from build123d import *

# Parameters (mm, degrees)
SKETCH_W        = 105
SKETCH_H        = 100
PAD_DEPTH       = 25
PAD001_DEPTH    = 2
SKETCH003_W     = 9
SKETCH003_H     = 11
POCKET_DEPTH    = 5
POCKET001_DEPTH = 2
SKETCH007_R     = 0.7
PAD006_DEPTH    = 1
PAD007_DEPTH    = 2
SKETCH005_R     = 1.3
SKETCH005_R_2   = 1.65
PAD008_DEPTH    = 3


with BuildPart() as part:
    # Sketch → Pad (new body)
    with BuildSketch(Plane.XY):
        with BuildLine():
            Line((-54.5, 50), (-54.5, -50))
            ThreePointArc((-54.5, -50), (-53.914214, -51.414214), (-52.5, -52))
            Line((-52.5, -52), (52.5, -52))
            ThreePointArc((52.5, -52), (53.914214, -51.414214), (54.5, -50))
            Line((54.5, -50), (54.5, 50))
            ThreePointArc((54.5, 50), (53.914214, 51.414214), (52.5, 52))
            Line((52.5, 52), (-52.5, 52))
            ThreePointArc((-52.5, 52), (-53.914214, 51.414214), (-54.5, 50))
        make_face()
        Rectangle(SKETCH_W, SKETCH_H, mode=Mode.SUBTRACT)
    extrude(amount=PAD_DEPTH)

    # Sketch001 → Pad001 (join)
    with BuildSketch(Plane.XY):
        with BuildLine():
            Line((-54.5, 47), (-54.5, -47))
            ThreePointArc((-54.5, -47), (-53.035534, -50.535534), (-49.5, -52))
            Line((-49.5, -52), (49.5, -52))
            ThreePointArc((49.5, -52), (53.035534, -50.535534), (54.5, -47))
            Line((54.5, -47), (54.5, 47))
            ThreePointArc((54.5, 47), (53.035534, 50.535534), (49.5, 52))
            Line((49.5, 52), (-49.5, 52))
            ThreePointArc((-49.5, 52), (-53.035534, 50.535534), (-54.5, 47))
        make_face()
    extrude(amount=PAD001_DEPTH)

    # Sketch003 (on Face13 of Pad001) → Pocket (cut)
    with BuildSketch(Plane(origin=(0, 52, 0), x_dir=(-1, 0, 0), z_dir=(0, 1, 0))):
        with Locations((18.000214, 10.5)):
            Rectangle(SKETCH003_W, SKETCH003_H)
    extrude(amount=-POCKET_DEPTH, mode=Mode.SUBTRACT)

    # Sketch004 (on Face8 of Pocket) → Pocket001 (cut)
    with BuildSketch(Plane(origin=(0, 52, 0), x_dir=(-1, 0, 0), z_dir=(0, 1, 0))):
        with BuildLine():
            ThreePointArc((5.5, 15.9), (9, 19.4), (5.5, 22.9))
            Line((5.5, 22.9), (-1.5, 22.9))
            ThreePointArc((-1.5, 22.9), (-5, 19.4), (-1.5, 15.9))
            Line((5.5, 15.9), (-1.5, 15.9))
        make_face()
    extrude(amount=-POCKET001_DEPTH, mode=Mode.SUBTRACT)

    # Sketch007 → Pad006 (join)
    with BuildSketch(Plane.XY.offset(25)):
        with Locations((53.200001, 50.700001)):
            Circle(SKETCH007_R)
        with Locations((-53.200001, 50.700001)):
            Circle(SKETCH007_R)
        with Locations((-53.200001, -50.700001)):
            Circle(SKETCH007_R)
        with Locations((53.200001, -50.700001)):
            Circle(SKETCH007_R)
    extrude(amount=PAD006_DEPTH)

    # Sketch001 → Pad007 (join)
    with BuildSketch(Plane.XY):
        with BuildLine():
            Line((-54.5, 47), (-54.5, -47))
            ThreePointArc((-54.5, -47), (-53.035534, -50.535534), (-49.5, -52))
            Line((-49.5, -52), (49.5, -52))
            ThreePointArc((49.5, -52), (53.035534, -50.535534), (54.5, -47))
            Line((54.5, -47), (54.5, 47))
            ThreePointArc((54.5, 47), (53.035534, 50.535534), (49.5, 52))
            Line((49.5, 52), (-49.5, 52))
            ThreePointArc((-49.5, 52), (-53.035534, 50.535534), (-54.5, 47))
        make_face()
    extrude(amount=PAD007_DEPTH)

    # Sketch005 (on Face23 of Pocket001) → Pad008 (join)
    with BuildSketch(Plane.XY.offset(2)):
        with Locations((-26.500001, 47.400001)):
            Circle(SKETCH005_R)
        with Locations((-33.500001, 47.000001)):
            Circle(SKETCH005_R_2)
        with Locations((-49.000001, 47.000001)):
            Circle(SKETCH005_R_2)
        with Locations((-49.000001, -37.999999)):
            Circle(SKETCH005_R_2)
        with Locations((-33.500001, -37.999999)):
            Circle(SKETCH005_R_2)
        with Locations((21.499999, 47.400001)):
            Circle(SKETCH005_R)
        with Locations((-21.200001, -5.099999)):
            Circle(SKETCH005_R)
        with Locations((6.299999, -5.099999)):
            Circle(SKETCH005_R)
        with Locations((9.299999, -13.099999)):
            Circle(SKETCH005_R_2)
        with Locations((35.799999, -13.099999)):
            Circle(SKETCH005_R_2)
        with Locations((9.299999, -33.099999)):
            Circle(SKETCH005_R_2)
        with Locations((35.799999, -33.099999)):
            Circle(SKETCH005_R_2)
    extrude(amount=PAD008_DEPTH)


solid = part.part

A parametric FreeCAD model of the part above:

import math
import FreeCAD as App
import Part
import Sketcher
from FreeCAD import Vector

doc = App.newDocument("Part")
body = doc.addObject("PartDesign::Body", "Body")

# Sketch on XY plane
sketch1 = body.newObject("Sketcher::SketchObject", "Sketch")
sketch1.AttachmentSupport = (doc.getObject("XY_Plane"), [""])
sketch1.MapMode = "FlatFace"
sketch1.addGeometry(Part.LineSegment(Vector(-54.5, 50, 0), Vector(-54.5, -50, 0)), False)
sketch1.addGeometry(Part.ArcOfCircle(Part.Circle(Vector(-52.500001, -50.000001, 0), Vector(0, 0, 1), 1.999999), math.radians(179.999957), math.radians(270.000043)), False)
sketch1.addGeometry(Part.LineSegment(Vector(-52.5, -52, 0), Vector(52.5, -52, 0)), False)
sketch1.addGeometry(Part.ArcOfCircle(Part.Circle(Vector(52.500001, -50.000001, 0), Vector(0, 0, 1), 1.999999), math.radians(-90.000043), math.radians(0.000043)), False)
sketch1.addGeometry(Part.LineSegment(Vector(54.5, -50, 0), Vector(54.5, 50, 0)), False)
sketch1.addGeometry(Part.ArcOfCircle(Part.Circle(Vector(52.500001, 50.000001, 0), Vector(0, 0, 1), 1.999999), math.radians(-0.000043), math.radians(90.000043)), False)
sketch1.addGeometry(Part.LineSegment(Vector(52.5, 52, 0), Vector(-52.5, 52, 0)), False)
sketch1.addGeometry(Part.ArcOfCircle(Part.Circle(Vector(-52.500001, 50.000001, 0), Vector(0, 0, 1), 1.999999), math.radians(89.999957), math.radians(180.000043)), False)
sketch1.addGeometry(Part.LineSegment(Vector(52.5, -50, 0), Vector(-52.5, -50, 0)), False)
sketch1.addGeometry(Part.LineSegment(Vector(-52.5, -50, 0), Vector(-52.5, 50, 0)), False)
sketch1.addGeometry(Part.LineSegment(Vector(-52.5, 50, 0), Vector(52.5, 50, 0)), False)
sketch1.addGeometry(Part.LineSegment(Vector(52.5, 50, 0), Vector(52.5, -50, 0)), False)
sketch1.addConstraint(Sketcher.Constraint("Tangent", 0, 2, 1, 1))
sketch1.addConstraint(Sketcher.Constraint("Tangent", 1, 2, 2, 1))
sketch1.addConstraint(Sketcher.Constraint("Tangent", 2, 2, 3, 1))
sketch1.addConstraint(Sketcher.Constraint("Tangent", 3, 2, 4, 1))
sketch1.addConstraint(Sketcher.Constraint("Tangent", 4, 2, 5, 1))
sketch1.addConstraint(Sketcher.Constraint("Tangent", 5, 2, 6, 1))
sketch1.addConstraint(Sketcher.Constraint("Tangent", 6, 2, 7, 1))
sketch1.addConstraint(Sketcher.Constraint("Tangent", 7, 2, 0, 1))
sketch1.addConstraint(Sketcher.Constraint("Coincident", 8, 2, 9, 1))
sketch1.addConstraint(Sketcher.Constraint("Coincident", 9, 2, 10, 1))
sketch1.addConstraint(Sketcher.Constraint("Coincident", 10, 2, 11, 1))
sketch1.addConstraint(Sketcher.Constraint("Coincident", 11, 2, 8, 1))
sketch1.addConstraint(Sketcher.Constraint("Vertical", 0))
sketch1.addConstraint(Sketcher.Constraint("Horizontal", 2))
sketch1.addConstraint(Sketcher.Constraint("Vertical", 4))
sketch1.addConstraint(Sketcher.Constraint("Horizontal", 6))
sketch1.addConstraint(Sketcher.Constraint("Horizontal", 8))
sketch1.addConstraint(Sketcher.Constraint("Vertical", 9))
sketch1.addConstraint(Sketcher.Constraint("Horizontal", 10))
sketch1.addConstraint(Sketcher.Constraint("Vertical", 11))
sketch1.addConstraint(Sketcher.Constraint("Coincident", 8, 2, 1, 3))
sketch1.addConstraint(Sketcher.Constraint("Coincident", 9, 2, 7, 3))
sketch1.addConstraint(Sketcher.Constraint("Coincident", 10, 2, 5, 3))
sketch1.addConstraint(Sketcher.Constraint("Equal", 1, 3))
sketch1.addConstraint(Sketcher.Constraint("Symmetric", 1, 3, 5, 3, -1, 1))
sketch1.addConstraint(Sketcher.Constraint("Radius", 1, 1.999999))
sketch1.addConstraint(Sketcher.Constraint("DistanceX", 2, 1, 2, 2, 105.0))
sketch1.addConstraint(Sketcher.Constraint("DistanceY", 0, 2, 0, 1, 100.0))
pad1 = body.newObject("PartDesign::Pad", "Pad")
pad1.Profile = sketch1
pad1.Length = 25

# Sketch on XY plane
sketch2 = body.newObject("Sketcher::SketchObject", "Sketch001")
sketch2.AttachmentSupport = (doc.getObject("XY_Plane"), [""])
sketch2.MapMode = "FlatFace"
sketch2.addGeometry(Part.LineSegment(Vector(-54.5, 47, 0), Vector(-54.5, -47, 0)), False)
sketch2.addGeometry(Part.ArcOfCircle(Part.Circle(Vector(-49.5, -47, 0), Vector(0, 0, 1), 5), math.radians(179.999996), math.radians(270.000004)), False)
sketch2.addGeometry(Part.LineSegment(Vector(-49.5, -52, 0), Vector(49.5, -52, 0)), False)
sketch2.addGeometry(Part.ArcOfCircle(Part.Circle(Vector(49.5, -47, 0), Vector(0, 0, 1), 5), math.radians(-90.000004), math.radians(0.000004)), False)
sketch2.addGeometry(Part.LineSegment(Vector(54.5, -47, 0), Vector(54.5, 47, 0)), False)
sketch2.addGeometry(Part.ArcOfCircle(Part.Circle(Vector(49.5, 47, 0), Vector(0, 0, 1), 5), math.radians(-0.000004), math.radians(90.000004)), False)
sketch2.addGeometry(Part.LineSegment(Vector(49.5, 52, 0), Vector(-49.5, 52, 0)), False)
sketch2.addGeometry(Part.ArcOfCircle(Part.Circle(Vector(-49.5, 47, 0), Vector(0, 0, 1), 5), math.radians(89.999996), math.radians(180.000004)), False)
sketch2.addConstraint(Sketcher.Constraint("Tangent", 0, 2, 1, 1))
sketch2.addConstraint(Sketcher.Constraint("Tangent", 1, 2, 2, 1))
sketch2.addConstraint(Sketcher.Constraint("Tangent", 2, 2, 3, 1))
sketch2.addConstraint(Sketcher.Constraint("Tangent", 3, 2, 4, 1))
sketch2.addConstraint(Sketcher.Constraint("Tangent", 4, 2, 5, 1))
sketch2.addConstraint(Sketcher.Constraint("Tangent", 5, 2, 6, 1))
sketch2.addConstraint(Sketcher.Constraint("Tangent", 6, 2, 7, 1))
sketch2.addConstraint(Sketcher.Constraint("Tangent", 7, 2, 0, 1))
sketch2.addConstraint(Sketcher.Constraint("Vertical", 0))
sketch2.addConstraint(Sketcher.Constraint("Horizontal", 2))
sketch2.addConstraint(Sketcher.Constraint("Vertical", 4))
sketch2.addConstraint(Sketcher.Constraint("Horizontal", 6))
sketch2.addConstraint(Sketcher.Constraint("Equal", 1, 3))
sketch2.addConstraint(Sketcher.Constraint("Equal", 3, 5))
sketch2.addConstraint(Sketcher.Constraint("Equal", 5, 7))
sketch2.addConstraint(Sketcher.Constraint("Symmetric", 1, 3, 5, 3, -1, 1))
sketch2.addConstraint(Sketcher.Constraint("Radius", 1, 5.0))
sketch2.addConstraint(Sketcher.Constraint("DistanceX", 2, 1, 2, 2, 99.0))
sketch2.addConstraint(Sketcher.Constraint("DistanceY", 0, 2, 0, 1, 94.0))
pad2 = body.newObject("PartDesign::Pad", "Pad001")
pad2.Profile = sketch2
pad2.Length = 2

# Sketch on XZ plane
sketch3 = body.newObject("Sketcher::SketchObject", "Sketch002")
sketch3.AttachmentSupport = (doc.getObject("XZ_Plane"), [""])
sketch3.MapMode = "FlatFace"
sketch3.AttachmentOffset = App.Placement(Vector(0, 0, -52), App.Rotation())
sketch3.addGeometry(Part.LineSegment(Vector(-13.500214, 16, 0), Vector(-13.500214, 5, 0)), False)
sketch3.addGeometry(Part.LineSegment(Vector(-13.500214, 5, 0), Vector(-22.500214, 5, 0)), False)
sketch3.addGeometry(Part.LineSegment(Vector(-22.500214, 5, 0), Vector(-22.500214, 16, 0)), False)
sketch3.addGeometry(Part.LineSegment(Vector(-22.500214, 16, 0), Vector(-13.500214, 16, 0)), False)
sketch3.addConstraint(Sketcher.Constraint("Coincident", 0, 2, 1, 1))
sketch3.addConstraint(Sketcher.Constraint("Coincident", 1, 2, 2, 1))
sketch3.addConstraint(Sketcher.Constraint("Coincident", 2, 2, 3, 1))
sketch3.addConstraint(Sketcher.Constraint("Coincident", 3, 2, 0, 1))
sketch3.addConstraint(Sketcher.Constraint("Vertical", 0))
sketch3.addConstraint(Sketcher.Constraint("Horizontal", 1))
sketch3.addConstraint(Sketcher.Constraint("Vertical", 2))
sketch3.addConstraint(Sketcher.Constraint("Horizontal", 3))
sketch3.addConstraint(Sketcher.Constraint("DistanceX", 1, 2, 1, 1, 9.0))
sketch3.addConstraint(Sketcher.Constraint("DistanceY", 0, 2, 0, 1, 11.0))
sketch3.addConstraint(Sketcher.Constraint("DistanceY", -1, 1, 0, 2, 5.0))
sketch3.addConstraint(Sketcher.Constraint("DistanceX", 0, 2, -1, 1, 13.500214))
pocket1 = body.newObject("PartDesign::Pocket", "Pocket")
pocket1.Profile = sketch3
pocket1.Length = 5
pocket1.Reversed = True

# Sketch on XZ plane
sketch4 = body.newObject("Sketcher::SketchObject", "Sketch003")
sketch4.AttachmentSupport = (doc.getObject("XZ_Plane"), [""])
sketch4.MapMode = "FlatFace"
sketch4.AttachmentOffset = App.Placement(Vector(0, 0, -52), App.Rotation())
sketch4.addGeometry(Part.ArcOfCircle(Part.Circle(Vector(-5.5, 19.4, 0), Vector(0, 0, 1), 3.5), math.radians(90), math.radians(270)), False)
sketch4.addGeometry(Part.LineSegment(Vector(-5.5, 22.9, 0), Vector(1.5, 22.9, 0)), False)
sketch4.addGeometry(Part.ArcOfCircle(Part.Circle(Vector(1.5, 19.4, 0), Vector(0, 0, 1), 3.5), math.radians(-90), math.radians(90)), False)
sketch4.addGeometry(Part.LineSegment(Vector(1.5, 15.9, 0), Vector(-5.5, 15.9, 0)), False)
sketch4.addConstraint(Sketcher.Constraint("Tangent", 0, 1, 1, 1))
sketch4.addConstraint(Sketcher.Constraint("Tangent", 1, 2, 2, 2))
sketch4.addConstraint(Sketcher.Constraint("Tangent", 2, 1, 3, 1))
sketch4.addConstraint(Sketcher.Constraint("Tangent", 3, 2, 0, 2))
sketch4.addConstraint(Sketcher.Constraint("Horizontal", 1))
sketch4.addConstraint(Sketcher.Constraint("Horizontal", 3))
sketch4.addConstraint(Sketcher.Constraint("Radius", 0, 3.5))
sketch4.addConstraint(Sketcher.Constraint("DistanceX", 1, 1, 1, 2, 7.0))
sketch4.addConstraint(Sketcher.Constraint("DistanceX", 0, 3, -1, 1, 5.5))
sketch4.addConstraint(Sketcher.Constraint("DistanceY", -1, 1, 0, 3, 19.4))
pocket2 = body.newObject("PartDesign::Pocket", "Pocket001")
pocket2.Profile = sketch4
pocket2.Length = 2
pocket2.Reversed = True

# Sketch on XY plane
sketch5 = body.newObject("Sketcher::SketchObject", "Sketch004")
sketch5.AttachmentSupport = (doc.getObject("XY_Plane"), [""])
sketch5.MapMode = "FlatFace"
sketch5.AttachmentOffset = App.Placement(Vector(0, 0, 25), App.Rotation())
sketch5.addGeometry(Part.Circle(Vector(53.200001, 50.700001, 0), Vector(0, 0, 1), 0.7), False)
sketch5.addGeometry(Part.Circle(Vector(-53.200001, 50.700001, 0), Vector(0, 0, 1), 0.7), False)
sketch5.addGeometry(Part.Circle(Vector(-53.200001, -50.700001, 0), Vector(0, 0, 1), 0.7), False)
sketch5.addGeometry(Part.Circle(Vector(53.200001, -50.700001, 0), Vector(0, 0, 1), 0.7), False)
sketch5.addConstraint(Sketcher.Constraint("Equal", 0, 1))
sketch5.addConstraint(Sketcher.Constraint("Equal", 1, 2))
sketch5.addConstraint(Sketcher.Constraint("Equal", 2, 3))
sketch5.addConstraint(Sketcher.Constraint("Symmetric", 0, 3, 2, 3, -1, 1))
sketch5.addConstraint(Sketcher.Constraint("Symmetric", 1, 3, 3, 3, -1, 1))
sketch5.addConstraint(Sketcher.Constraint("Symmetric", 0, 3, 1, 3, -2))
sketch5.addConstraint(Sketcher.Constraint("Diameter", 0, 1.4))
sketch5.addConstraint(Sketcher.Constraint("DistanceX", -1, 1, 0, 3, 53.200001))
sketch5.addConstraint(Sketcher.Constraint("DistanceY", -1, 1, 0, 3, 50.700001))
pad3 = body.newObject("PartDesign::Pad", "Pad002")
pad3.Profile = sketch5
pad3.Length = 1

# Sketch on XY plane
sketch6 = body.newObject("Sketcher::SketchObject", "Sketch005")
sketch6.AttachmentSupport = (doc.getObject("XY_Plane"), [""])
sketch6.MapMode = "FlatFace"
sketch6.addGeometry(Part.LineSegment(Vector(-54.5, 47, 0), Vector(-54.5, -47, 0)), False)
sketch6.addGeometry(Part.ArcOfCircle(Part.Circle(Vector(-49.5, -47, 0), Vector(0, 0, 1), 5), math.radians(179.999996), math.radians(270.000004)), False)
sketch6.addGeometry(Part.LineSegment(Vector(-49.5, -52, 0), Vector(49.5, -52, 0)), False)
sketch6.addGeometry(Part.ArcOfCircle(Part.Circle(Vector(49.5, -47, 0), Vector(0, 0, 1), 5), math.radians(-90.000004), math.radians(0.000004)), False)
sketch6.addGeometry(Part.LineSegment(Vector(54.5, -47, 0), Vector(54.5, 47, 0)), False)
sketch6.addGeometry(Part.ArcOfCircle(Part.Circle(Vector(49.5, 47, 0), Vector(0, 0, 1), 5), math.radians(-0.000004), math.radians(90.000004)), False)
sketch6.addGeometry(Part.LineSegment(Vector(49.5, 52, 0), Vector(-49.5, 52, 0)), False)
sketch6.addGeometry(Part.ArcOfCircle(Part.Circle(Vector(-49.5, 47, 0), Vector(0, 0, 1), 5), math.radians(89.999996), math.radians(180.000004)), False)
sketch6.addConstraint(Sketcher.Constraint("Tangent", 0, 2, 1, 1))
sketch6.addConstraint(Sketcher.Constraint("Tangent", 1, 2, 2, 1))
sketch6.addConstraint(Sketcher.Constraint("Tangent", 2, 2, 3, 1))
sketch6.addConstraint(Sketcher.Constraint("Tangent", 3, 2, 4, 1))
sketch6.addConstraint(Sketcher.Constraint("Tangent", 4, 2, 5, 1))
sketch6.addConstraint(Sketcher.Constraint("Tangent", 5, 2, 6, 1))
sketch6.addConstraint(Sketcher.Constraint("Tangent", 6, 2, 7, 1))
sketch6.addConstraint(Sketcher.Constraint("Tangent", 7, 2, 0, 1))
sketch6.addConstraint(Sketcher.Constraint("Vertical", 0))
sketch6.addConstraint(Sketcher.Constraint("Horizontal", 2))
sketch6.addConstraint(Sketcher.Constraint("Vertical", 4))
sketch6.addConstraint(Sketcher.Constraint("Horizontal", 6))
sketch6.addConstraint(Sketcher.Constraint("Equal", 1, 3))
sketch6.addConstraint(Sketcher.Constraint("Equal", 3, 5))
sketch6.addConstraint(Sketcher.Constraint("Equal", 5, 7))
sketch6.addConstraint(Sketcher.Constraint("Symmetric", 1, 3, 5, 3, -1, 1))
sketch6.addConstraint(Sketcher.Constraint("Radius", 1, 5.0))
sketch6.addConstraint(Sketcher.Constraint("DistanceX", 2, 1, 2, 2, 99.0))
sketch6.addConstraint(Sketcher.Constraint("DistanceY", 0, 2, 0, 1, 94.0))
pad4 = body.newObject("PartDesign::Pad", "Pad003")
pad4.Profile = sketch6
pad4.Length = 2

# Sketch on XY plane
sketch7 = body.newObject("Sketcher::SketchObject", "Sketch006")
sketch7.AttachmentSupport = (doc.getObject("XY_Plane"), [""])
sketch7.MapMode = "FlatFace"
sketch7.AttachmentOffset = App.Placement(Vector(0, 0, 2), App.Rotation())
sketch7.addGeometry(Part.Circle(Vector(-26.500001, 47.400001, 0), Vector(0, 0, 1), 1.3), False)
sketch7.addGeometry(Part.Circle(Vector(-33.500001, 47.000001, 0), Vector(0, 0, 1), 1.65), False)
sketch7.addGeometry(Part.Circle(Vector(-49.000001, 47.000001, 0), Vector(0, 0, 1), 1.65), False)
sketch7.addGeometry(Part.Circle(Vector(-49.000001, -37.999999, 0), Vector(0, 0, 1), 1.65), False)
sketch7.addGeometry(Part.Circle(Vector(-33.500001, -37.999999, 0), Vector(0, 0, 1), 1.65), False)
sketch7.addGeometry(Part.Circle(Vector(21.499999, 47.400001, 0), Vector(0, 0, 1), 1.3), False)
sketch7.addGeometry(Part.Circle(Vector(-21.200001, -5.099999, 0), Vector(0, 0, 1), 1.3), False)
sketch7.addGeometry(Part.Circle(Vector(6.299999, -5.099999, 0), Vector(0, 0, 1), 1.3), False)
sketch7.addGeometry(Part.Circle(Vector(9.299999, -13.099999, 0), Vector(0, 0, 1), 1.65), False)
sketch7.addGeometry(Part.Circle(Vector(35.799999, -13.099999, 0), Vector(0, 0, 1), 1.65), False)
sketch7.addGeometry(Part.Circle(Vector(9.299999, -33.099999, 0), Vector(0, 0, 1), 1.65), False)
sketch7.addGeometry(Part.Circle(Vector(35.799999, -33.099999, 0), Vector(0, 0, 1), 1.65), False)
sketch7.addConstraint(Sketcher.Constraint("Equal", 1, 2))
sketch7.addConstraint(Sketcher.Constraint("Equal", 2, 3))
sketch7.addConstraint(Sketcher.Constraint("Equal", 3, 4))
sketch7.addConstraint(Sketcher.Constraint("Equal", 0, 5))
sketch7.addConstraint(Sketcher.Constraint("Equal", 5, 6))
sketch7.addConstraint(Sketcher.Constraint("Equal", 6, 7))
sketch7.addConstraint(Sketcher.Constraint("Equal", 4, 8))
sketch7.addConstraint(Sketcher.Constraint("Equal", 8, 9))
sketch7.addConstraint(Sketcher.Constraint("Equal", 9, 10))
sketch7.addConstraint(Sketcher.Constraint("Equal", 10, 11))
sketch7.addConstraint(Sketcher.Constraint("Horizontal", 1, 3, 2, 3))
sketch7.addConstraint(Sketcher.Constraint("Horizontal", 3, 3, 4, 3))
sketch7.addConstraint(Sketcher.Constraint("Horizontal", 0, 3, 5, 3))
sketch7.addConstraint(Sketcher.Constraint("Horizontal", 6, 3, 7, 3))
sketch7.addConstraint(Sketcher.Constraint("Horizontal", 8, 3, 9, 3))
sketch7.addConstraint(Sketcher.Constraint("Horizontal", 10, 3, 11, 3))
sketch7.addConstraint(Sketcher.Constraint("Vertical", 2, 3, 3, 3))
sketch7.addConstraint(Sketcher.Constraint("Vertical", 1, 3, 4, 3))
sketch7.addConstraint(Sketcher.Constraint("Vertical", 8, 3, 10, 3))
sketch7.addConstraint(Sketcher.Constraint("Vertical", 9, 3, 11, 3))
sketch7.addConstraint(Sketcher.Constraint("Diameter", 0, 2.6))
sketch7.addConstraint(Sketcher.Constraint("Diameter", 1, 3.3))
sketch7.addConstraint(Sketcher.Constraint("DistanceY", -1, 1, 1, 3, 47.000001))
sketch7.addConstraint(Sketcher.Constraint("DistanceX", 2, 3, -1, 1, 49.000001))
sketch7.addConstraint(Sketcher.Constraint("DistanceY", 3, 3, -1, 1, 37.999999))
sketch7.addConstraint(Sketcher.Constraint("DistanceX", 1, 3, 0, 3, 7.0))
sketch7.addConstraint(Sketcher.Constraint("DistanceX", 0, 3, 5, 3, 48.0))
sketch7.addConstraint(Sketcher.Constraint("DistanceX", 7, 3, 8, 3, 3.0))
sketch7.addConstraint(Sketcher.Constraint("DistanceY", 8, 3, 7, 3, 8.0))
sketch7.addConstraint(Sketcher.Constraint("DistanceX", 6, 3, 9, 3, 57.0))
sketch7.addConstraint(Sketcher.Constraint("DistanceY", 10, 3, 8, 3, 20.0))
sketch7.addConstraint(Sketcher.Constraint("DistanceX", 0, 3, -1, 1, 26.500001))
sketch7.addConstraint(Sketcher.Constraint("DistanceY", -1, 1, 0, 3, 47.400001))
sketch7.addConstraint(Sketcher.Constraint("DistanceX", 6, 3, -1, 1, 21.200001))
sketch7.addConstraint(Sketcher.Constraint("DistanceY", 6, 3, -1, 1, 5.099999))
sketch7.addConstraint(Sketcher.Constraint("DistanceX", -1, 1, 7, 3, 6.299999))
pad5 = body.newObject("PartDesign::Pad", "Pad004")
pad5.Profile = sketch7
pad5.Length = 3

doc.recompute()
